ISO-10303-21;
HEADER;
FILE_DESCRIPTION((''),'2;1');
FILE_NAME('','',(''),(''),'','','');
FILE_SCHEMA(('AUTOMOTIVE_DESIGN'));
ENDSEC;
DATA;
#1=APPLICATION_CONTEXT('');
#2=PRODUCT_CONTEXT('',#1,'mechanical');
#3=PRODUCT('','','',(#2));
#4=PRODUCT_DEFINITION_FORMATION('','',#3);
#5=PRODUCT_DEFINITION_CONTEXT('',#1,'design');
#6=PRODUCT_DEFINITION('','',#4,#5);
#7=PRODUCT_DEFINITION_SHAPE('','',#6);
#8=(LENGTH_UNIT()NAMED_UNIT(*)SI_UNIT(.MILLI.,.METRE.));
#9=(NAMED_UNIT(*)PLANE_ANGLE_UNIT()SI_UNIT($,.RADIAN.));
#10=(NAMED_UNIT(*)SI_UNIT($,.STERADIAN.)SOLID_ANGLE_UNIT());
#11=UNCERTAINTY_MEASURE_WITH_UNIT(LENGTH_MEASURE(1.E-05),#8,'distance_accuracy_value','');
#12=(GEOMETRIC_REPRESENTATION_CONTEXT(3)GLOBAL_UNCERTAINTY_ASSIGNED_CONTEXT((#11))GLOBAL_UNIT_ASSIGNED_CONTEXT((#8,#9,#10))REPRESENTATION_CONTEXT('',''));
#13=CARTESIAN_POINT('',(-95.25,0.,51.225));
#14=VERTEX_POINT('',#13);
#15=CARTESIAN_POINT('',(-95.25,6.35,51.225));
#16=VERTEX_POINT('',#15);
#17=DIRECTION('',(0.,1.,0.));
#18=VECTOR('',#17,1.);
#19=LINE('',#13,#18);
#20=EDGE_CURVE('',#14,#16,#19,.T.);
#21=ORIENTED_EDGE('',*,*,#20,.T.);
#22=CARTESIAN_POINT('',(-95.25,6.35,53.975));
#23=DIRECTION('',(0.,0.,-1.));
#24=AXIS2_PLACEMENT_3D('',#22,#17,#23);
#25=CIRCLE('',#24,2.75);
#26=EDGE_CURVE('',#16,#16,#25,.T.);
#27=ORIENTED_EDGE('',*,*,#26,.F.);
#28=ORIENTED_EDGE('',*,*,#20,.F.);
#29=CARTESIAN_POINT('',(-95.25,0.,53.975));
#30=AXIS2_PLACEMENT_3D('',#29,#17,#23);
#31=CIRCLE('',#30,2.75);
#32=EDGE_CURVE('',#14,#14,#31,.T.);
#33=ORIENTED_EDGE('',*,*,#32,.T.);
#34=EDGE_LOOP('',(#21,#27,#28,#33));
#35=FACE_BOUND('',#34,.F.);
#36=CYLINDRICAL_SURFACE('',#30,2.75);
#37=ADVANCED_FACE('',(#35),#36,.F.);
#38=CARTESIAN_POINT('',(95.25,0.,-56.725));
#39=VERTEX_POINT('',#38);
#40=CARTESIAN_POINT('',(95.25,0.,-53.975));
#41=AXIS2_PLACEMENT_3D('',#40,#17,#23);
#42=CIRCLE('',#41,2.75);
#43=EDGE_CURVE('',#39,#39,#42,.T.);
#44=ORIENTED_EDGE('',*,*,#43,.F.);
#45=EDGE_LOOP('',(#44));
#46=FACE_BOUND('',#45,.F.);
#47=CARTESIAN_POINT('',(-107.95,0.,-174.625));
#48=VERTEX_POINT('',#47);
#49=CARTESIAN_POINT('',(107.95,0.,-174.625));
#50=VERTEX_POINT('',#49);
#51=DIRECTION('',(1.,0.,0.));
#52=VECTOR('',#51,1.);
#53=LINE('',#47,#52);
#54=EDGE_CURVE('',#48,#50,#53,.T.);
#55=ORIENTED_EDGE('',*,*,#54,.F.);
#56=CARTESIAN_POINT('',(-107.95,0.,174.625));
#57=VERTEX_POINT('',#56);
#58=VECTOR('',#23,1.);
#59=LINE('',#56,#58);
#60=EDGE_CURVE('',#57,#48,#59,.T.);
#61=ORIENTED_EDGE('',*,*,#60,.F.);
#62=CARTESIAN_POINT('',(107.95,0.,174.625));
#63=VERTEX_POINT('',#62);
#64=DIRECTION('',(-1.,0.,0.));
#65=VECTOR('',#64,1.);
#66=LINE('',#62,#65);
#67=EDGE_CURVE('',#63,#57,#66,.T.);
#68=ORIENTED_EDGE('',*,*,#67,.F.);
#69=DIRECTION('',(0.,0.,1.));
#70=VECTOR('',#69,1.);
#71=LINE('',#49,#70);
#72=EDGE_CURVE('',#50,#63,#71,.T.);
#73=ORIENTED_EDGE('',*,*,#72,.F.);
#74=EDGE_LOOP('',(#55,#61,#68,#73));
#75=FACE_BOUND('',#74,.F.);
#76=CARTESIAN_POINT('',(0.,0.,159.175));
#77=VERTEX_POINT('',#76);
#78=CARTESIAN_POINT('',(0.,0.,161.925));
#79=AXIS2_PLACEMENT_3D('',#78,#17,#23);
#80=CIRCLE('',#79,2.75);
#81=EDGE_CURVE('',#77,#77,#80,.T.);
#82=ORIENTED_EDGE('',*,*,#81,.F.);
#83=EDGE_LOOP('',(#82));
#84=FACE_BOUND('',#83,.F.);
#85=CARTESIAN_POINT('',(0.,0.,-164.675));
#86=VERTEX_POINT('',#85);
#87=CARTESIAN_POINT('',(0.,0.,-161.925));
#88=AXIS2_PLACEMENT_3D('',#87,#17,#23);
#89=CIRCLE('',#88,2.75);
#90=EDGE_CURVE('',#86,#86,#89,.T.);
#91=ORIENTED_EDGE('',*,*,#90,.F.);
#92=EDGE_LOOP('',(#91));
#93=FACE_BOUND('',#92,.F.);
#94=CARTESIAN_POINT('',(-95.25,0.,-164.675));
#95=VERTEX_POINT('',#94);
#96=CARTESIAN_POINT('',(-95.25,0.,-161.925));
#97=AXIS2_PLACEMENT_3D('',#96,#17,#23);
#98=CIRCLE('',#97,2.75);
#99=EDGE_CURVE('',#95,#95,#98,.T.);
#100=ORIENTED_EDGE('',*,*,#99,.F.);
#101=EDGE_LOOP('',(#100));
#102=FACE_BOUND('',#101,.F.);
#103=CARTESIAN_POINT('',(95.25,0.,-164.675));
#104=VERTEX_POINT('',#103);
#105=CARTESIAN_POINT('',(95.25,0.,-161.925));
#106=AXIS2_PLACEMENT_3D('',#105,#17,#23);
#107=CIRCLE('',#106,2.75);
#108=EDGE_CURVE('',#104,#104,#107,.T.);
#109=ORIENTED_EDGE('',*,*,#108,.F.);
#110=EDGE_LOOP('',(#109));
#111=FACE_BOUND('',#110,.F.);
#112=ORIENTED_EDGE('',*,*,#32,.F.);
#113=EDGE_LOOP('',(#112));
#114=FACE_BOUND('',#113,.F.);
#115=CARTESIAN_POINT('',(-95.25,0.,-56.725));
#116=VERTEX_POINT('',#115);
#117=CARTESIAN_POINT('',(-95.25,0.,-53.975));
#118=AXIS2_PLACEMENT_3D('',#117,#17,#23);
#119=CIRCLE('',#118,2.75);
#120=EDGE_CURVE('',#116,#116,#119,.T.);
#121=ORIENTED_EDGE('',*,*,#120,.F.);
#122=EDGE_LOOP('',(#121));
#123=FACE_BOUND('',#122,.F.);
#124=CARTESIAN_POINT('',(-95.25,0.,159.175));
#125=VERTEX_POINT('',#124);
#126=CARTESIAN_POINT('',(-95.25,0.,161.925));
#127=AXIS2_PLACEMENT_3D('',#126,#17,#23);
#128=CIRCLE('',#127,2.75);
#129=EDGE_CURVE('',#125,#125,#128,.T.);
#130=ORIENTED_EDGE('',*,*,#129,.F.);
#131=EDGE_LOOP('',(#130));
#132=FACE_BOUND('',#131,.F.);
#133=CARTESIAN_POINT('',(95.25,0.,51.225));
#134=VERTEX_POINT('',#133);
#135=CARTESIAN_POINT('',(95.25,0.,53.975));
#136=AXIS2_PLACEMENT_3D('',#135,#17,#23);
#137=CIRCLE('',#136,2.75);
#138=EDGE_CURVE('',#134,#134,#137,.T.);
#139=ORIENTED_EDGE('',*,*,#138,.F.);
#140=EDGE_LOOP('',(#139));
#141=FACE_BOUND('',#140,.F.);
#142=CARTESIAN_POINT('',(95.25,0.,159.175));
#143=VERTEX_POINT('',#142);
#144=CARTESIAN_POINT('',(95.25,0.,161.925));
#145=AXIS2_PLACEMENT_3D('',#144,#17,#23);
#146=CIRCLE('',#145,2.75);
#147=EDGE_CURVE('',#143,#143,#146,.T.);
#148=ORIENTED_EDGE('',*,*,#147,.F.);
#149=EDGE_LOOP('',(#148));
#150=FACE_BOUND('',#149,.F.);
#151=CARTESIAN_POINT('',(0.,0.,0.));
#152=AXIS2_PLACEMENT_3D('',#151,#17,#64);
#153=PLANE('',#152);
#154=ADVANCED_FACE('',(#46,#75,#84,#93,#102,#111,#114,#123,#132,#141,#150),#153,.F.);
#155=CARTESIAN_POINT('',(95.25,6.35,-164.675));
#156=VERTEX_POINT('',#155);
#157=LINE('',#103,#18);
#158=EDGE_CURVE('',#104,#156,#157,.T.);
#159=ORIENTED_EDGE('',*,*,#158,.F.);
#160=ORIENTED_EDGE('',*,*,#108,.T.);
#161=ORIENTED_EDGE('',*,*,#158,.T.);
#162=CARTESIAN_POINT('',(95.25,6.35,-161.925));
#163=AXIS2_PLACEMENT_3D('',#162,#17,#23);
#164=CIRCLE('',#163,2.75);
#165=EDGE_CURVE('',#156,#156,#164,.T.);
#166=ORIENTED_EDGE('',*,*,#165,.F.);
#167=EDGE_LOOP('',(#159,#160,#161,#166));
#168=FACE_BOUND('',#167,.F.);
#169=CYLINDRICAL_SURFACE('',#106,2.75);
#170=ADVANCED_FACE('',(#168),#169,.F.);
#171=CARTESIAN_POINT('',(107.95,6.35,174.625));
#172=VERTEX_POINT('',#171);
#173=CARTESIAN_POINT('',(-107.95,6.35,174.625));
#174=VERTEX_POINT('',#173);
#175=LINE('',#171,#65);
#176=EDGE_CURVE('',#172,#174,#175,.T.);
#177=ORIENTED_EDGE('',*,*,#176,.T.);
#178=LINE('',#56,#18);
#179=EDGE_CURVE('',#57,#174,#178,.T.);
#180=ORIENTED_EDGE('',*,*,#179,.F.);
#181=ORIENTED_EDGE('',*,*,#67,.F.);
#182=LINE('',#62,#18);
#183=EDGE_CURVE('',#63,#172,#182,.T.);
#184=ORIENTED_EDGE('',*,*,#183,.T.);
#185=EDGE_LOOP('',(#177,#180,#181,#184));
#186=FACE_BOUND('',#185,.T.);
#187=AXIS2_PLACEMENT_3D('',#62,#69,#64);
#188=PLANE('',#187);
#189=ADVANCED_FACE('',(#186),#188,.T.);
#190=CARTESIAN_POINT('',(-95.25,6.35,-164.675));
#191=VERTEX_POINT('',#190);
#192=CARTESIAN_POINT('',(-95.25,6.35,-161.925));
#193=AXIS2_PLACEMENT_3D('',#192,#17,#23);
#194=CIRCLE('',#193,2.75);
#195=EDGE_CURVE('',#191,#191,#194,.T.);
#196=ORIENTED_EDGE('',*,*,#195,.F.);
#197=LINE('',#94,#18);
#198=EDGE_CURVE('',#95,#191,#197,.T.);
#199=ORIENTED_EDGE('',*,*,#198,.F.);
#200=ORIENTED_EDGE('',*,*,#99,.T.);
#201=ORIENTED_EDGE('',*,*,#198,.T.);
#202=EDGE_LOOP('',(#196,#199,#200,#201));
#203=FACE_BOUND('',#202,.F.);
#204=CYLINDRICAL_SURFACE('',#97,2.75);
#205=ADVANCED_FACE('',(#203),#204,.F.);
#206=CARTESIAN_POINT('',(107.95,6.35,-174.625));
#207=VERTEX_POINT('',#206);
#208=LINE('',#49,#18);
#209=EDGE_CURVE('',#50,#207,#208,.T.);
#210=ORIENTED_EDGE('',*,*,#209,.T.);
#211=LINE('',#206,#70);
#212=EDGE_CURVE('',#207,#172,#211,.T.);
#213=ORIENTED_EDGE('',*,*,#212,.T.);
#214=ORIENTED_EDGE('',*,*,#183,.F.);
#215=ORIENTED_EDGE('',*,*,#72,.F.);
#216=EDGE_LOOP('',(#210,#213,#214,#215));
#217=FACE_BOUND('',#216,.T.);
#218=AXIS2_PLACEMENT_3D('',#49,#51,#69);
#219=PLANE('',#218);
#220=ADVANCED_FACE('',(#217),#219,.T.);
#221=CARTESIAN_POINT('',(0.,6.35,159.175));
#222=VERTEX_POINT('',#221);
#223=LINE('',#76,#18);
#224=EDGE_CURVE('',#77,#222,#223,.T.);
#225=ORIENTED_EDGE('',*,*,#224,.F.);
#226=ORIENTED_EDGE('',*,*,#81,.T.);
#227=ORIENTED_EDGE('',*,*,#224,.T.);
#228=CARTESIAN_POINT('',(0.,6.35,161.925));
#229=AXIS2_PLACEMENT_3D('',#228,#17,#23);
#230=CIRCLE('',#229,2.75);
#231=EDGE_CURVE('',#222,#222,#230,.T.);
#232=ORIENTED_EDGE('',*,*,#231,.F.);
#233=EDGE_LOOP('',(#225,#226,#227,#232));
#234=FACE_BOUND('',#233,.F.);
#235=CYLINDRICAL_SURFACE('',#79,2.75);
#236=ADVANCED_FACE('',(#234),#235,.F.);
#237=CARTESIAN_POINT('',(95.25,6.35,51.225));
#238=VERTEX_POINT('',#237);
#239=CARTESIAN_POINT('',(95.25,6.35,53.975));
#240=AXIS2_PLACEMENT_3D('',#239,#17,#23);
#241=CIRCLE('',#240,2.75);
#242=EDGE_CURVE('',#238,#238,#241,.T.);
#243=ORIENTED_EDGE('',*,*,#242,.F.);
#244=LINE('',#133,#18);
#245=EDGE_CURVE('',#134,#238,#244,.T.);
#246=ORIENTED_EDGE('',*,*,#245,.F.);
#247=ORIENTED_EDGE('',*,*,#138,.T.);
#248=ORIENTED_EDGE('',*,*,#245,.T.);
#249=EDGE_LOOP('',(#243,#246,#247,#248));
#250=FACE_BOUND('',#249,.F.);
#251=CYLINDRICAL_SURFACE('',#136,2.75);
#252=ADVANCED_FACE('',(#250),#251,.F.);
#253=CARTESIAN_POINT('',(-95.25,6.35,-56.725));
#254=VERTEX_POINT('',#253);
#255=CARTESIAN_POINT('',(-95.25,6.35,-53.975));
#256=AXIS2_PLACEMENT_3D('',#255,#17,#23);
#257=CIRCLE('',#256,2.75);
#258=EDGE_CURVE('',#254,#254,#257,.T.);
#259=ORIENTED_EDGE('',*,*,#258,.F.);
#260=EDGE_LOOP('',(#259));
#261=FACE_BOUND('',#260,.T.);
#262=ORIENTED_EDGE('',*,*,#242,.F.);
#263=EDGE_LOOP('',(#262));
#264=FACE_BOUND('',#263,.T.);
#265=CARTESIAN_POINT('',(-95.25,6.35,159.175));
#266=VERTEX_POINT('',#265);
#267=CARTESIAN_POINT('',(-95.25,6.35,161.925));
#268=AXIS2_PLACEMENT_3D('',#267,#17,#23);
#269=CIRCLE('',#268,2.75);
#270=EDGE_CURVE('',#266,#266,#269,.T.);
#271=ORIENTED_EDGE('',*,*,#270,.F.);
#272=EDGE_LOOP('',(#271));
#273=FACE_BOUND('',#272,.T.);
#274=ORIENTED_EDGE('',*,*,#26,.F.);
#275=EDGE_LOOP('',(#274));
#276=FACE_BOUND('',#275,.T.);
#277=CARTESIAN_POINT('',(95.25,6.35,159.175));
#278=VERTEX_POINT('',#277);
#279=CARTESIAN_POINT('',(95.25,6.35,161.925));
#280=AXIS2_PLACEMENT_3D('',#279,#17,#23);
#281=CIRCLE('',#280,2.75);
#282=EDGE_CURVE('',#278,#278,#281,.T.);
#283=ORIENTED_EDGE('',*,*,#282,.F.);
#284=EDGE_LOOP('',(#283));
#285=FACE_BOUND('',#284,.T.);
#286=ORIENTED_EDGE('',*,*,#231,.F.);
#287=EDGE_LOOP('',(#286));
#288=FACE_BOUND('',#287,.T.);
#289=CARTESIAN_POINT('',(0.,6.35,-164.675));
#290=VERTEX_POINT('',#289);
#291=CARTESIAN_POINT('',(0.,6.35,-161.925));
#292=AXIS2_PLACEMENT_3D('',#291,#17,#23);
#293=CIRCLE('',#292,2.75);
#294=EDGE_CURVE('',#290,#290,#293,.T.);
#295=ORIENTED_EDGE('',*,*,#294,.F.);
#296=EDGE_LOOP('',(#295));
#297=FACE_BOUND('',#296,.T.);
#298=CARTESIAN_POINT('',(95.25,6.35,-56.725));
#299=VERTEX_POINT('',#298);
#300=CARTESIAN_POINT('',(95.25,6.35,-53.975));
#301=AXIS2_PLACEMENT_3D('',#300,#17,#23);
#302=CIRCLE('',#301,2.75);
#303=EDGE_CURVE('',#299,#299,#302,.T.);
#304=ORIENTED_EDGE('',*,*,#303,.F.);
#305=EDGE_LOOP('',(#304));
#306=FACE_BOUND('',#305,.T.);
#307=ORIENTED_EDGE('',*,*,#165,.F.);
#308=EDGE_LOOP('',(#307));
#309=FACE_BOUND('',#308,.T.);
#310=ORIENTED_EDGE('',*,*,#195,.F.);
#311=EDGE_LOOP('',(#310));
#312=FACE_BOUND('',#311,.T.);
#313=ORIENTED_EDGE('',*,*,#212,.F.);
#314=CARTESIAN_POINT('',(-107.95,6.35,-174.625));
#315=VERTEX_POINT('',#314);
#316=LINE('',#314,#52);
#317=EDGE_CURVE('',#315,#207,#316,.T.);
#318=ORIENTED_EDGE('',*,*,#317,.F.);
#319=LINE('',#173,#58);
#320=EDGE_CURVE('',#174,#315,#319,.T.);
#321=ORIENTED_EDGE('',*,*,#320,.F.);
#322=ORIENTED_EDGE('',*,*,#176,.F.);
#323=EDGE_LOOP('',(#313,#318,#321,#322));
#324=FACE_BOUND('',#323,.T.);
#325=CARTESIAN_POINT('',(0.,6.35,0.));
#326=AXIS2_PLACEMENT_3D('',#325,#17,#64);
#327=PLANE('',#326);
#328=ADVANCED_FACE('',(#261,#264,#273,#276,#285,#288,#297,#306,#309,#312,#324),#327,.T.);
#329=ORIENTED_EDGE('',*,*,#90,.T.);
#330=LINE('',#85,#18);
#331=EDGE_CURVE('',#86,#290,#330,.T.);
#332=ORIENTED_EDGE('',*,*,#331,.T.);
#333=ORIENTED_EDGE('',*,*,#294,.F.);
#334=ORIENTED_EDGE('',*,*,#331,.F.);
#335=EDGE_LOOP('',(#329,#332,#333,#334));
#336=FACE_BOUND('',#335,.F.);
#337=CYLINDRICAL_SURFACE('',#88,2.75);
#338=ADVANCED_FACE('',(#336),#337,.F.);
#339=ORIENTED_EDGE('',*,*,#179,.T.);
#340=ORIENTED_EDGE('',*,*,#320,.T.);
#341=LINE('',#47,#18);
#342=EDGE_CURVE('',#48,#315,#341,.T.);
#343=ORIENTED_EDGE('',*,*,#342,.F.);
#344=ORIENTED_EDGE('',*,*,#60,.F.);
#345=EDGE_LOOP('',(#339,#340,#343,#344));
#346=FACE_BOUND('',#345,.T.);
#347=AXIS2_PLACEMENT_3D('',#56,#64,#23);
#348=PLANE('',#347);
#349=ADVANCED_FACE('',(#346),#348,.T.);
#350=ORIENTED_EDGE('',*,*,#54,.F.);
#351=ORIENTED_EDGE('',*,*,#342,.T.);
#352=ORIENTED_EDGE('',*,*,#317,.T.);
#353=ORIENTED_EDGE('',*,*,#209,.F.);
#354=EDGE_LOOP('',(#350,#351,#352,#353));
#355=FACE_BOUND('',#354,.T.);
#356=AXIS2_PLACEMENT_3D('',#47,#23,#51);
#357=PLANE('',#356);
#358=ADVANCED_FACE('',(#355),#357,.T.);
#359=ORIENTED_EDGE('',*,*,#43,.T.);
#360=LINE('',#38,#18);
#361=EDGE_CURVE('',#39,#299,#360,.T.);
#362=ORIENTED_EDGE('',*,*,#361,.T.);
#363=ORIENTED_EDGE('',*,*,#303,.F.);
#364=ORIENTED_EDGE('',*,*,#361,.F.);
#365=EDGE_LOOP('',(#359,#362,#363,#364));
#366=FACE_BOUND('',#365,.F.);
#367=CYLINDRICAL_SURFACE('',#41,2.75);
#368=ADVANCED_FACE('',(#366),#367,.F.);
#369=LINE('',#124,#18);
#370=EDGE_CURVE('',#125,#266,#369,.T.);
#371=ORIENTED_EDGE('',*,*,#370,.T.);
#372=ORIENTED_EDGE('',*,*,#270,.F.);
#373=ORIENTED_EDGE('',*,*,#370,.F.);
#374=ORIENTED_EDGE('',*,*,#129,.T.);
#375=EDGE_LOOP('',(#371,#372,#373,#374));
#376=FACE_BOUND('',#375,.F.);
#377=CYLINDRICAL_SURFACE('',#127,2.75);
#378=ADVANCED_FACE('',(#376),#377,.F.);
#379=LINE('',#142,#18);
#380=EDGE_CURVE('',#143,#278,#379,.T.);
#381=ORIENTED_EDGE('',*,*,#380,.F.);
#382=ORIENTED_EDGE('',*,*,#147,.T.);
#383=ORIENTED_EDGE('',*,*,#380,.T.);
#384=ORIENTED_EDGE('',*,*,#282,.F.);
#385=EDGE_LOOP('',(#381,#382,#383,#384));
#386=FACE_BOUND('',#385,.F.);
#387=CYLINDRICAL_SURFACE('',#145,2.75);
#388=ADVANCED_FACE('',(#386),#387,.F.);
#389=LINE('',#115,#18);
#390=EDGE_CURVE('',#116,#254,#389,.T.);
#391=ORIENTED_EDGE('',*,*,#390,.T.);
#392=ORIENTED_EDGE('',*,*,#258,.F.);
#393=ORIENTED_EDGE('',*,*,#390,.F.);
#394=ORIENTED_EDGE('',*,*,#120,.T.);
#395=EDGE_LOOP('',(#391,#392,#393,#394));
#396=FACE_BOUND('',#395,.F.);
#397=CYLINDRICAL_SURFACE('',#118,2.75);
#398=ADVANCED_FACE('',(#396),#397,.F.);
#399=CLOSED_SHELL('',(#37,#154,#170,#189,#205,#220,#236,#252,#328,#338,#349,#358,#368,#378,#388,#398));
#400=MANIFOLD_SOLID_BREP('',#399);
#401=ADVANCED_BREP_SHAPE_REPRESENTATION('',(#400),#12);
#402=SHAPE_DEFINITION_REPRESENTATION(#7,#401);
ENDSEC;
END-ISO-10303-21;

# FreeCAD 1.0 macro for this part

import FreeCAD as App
import Part
import Sketcher
Q = App.Units.Quantity


def add_polygon(sketch, points):
    """Adds a closed chain of lines whose ends are joined by coincident constraints."""
    first, n = sketch.GeometryCount, len(points)
    for a, b in zip(points, points[1:] + points[:1]):
        sketch.addGeometry(Part.LineSegment(App.Vector(*a, 0), App.Vector(*b, 0)), False)
    for i in range(n):
        sketch.addConstraint(Sketcher.Constraint("Coincident", first + i, 2, first + (i + 1) % n, 1))

doc = App.newDocument("Part")
body = doc.addObject("PartDesign::Body", "Body")

# Sketch on XZ plane
sketch1 = body.newObject("Sketcher::SketchObject", "Sketch")
sketch1.AttachmentSupport = (doc.getObject("XZ_Plane"), [""])
sketch1.MapMode = "FlatFace"
add_polygon(sketch1, [(108, -175), (-108, -175), (-108, 175), (108, 175)])  # lines 0-3
sketch1.addConstraint(Sketcher.Constraint("Horizontal", 0))
sketch1.addConstraint(Sketcher.Constraint("Vertical", 1))
sketch1.addConstraint(Sketcher.Constraint("Horizontal", 2))
sketch1.addConstraint(Sketcher.Constraint("Vertical", 3))
sketch1.addConstraint(Sketcher.Constraint("Symmetric", 0, 2, 2, 2, -1, 1))
sketch1.addConstraint(Sketcher.Constraint("DistanceX", 0, 2, 0, 1, Q("8.5 in")))
sketch1.addConstraint(Sketcher.Constraint("DistanceY", 1, 1, 1, 2, Q("13.75 in")))
pad1 = body.newObject("PartDesign::Pad", "Pad")
pad1.Profile = sketch1
pad1.Length = Q("0.25 in")
pad1.Reversed = True

# Sketch on XZ plane
sketch2 = body.newObject("Sketcher::SketchObject", "Sketch001")
sketch2.AttachmentSupport = (doc.getObject("XZ_Plane"), [""])
sketch2.MapMode = "FlatFace"
sketch2.addGeometry(Part.Circle(App.Vector(95.2, -161.9, 0), App.Vector(0, 0, 1), 2.8), False)
sketch2.addGeometry(Part.Circle(App.Vector(0, -161.9, 0), App.Vector(0, 0, 1), 2.8), False)
sketch2.addGeometry(Part.Circle(App.Vector(-95.2, -161.9, 0), App.Vector(0, 0, 1), 2.8), False)
sketch2.addGeometry(Part.Circle(App.Vector(-95.2, -54, 0), App.Vector(0, 0, 1), 2.8), False)
sketch2.addGeometry(Part.Circle(App.Vector(-95.2, 54, 0), App.Vector(0, 0, 1), 2.8), False)
sketch2.addGeometry(Part.Circle(App.Vector(-95.2, 161.9, 0), App.Vector(0, 0, 1), 2.8), False)
sketch2.addGeometry(Part.Circle(App.Vector(0, 161.9, 0), App.Vector(0, 0, 1), 2.8), False)
sketch2.addGeometry(Part.Circle(App.Vector(95.2, 161.9, 0), App.Vector(0, 0, 1), 2.8), False)
sketch2.addGeometry(Part.Circle(App.Vector(95.2, 54, 0), App.Vector(0, 0, 1), 2.8), False)
sketch2.addGeometry(Part.Circle(App.Vector(95.2, -54, 0), App.Vector(0, 0, 1), 2.8), False)
sketch2.addConstraint(Sketcher.Constraint("Equal", 0, 1))
sketch2.addConstraint(Sketcher.Constraint("Equal", 1, 2))
sketch2.addConstraint(Sketcher.Constraint("Equal", 2, 3))
sketch2.addConstraint(Sketcher.Constraint("Equal", 3, 4))
sketch2.addConstraint(Sketcher.Constraint("Equal", 4, 5))
sketch2.addConstraint(Sketcher.Constraint("Equal", 5, 6))
sketch2.addConstraint(Sketcher.Constraint("Equal", 6, 7))
sketch2.addConstraint(Sketcher.Constraint("Equal", 7, 8))
sketch2.addConstraint(Sketcher.Constraint("Equal", 8, 9))
sketch2.addConstraint(Sketcher.Constraint("Symmetric", 0, 3, 5, 3, -1, 1))
sketch2.addConstraint(Sketcher.Constraint("Symmetric", 1, 3, 6, 3, -1, 1))
sketch2.addConstraint(Sketcher.Constraint("Symmetric", 2, 3, 7, 3, -1, 1))
sketch2.addConstraint(Sketcher.Constraint("Symmetric", 3, 3, 8, 3, -1, 1))
sketch2.addConstraint(Sketcher.Constraint("Symmetric", 4, 3, 9, 3, -1, 1))
sketch2.addConstraint(Sketcher.Constraint("Symmetric", 0, 3, 2, 3, -2))
sketch2.addConstraint(Sketcher.Constraint("Symmetric", 4, 3, 8, 3, -2))
sketch2.addConstraint(Sketcher.Constraint("PointOnObject", 1, 3, -2))
sketch2.addConstraint(Sketcher.Constraint("Horizontal", 0, 3, 1, 3))
sketch2.addConstraint(Sketcher.Constraint("Vertical", 2, 3, 3, 3))
sketch2.addConstraint(Sketcher.Constraint("DistanceX", 2, 3, 0, 3, Q("7.5 in")))
sketch2.addConstraint(Sketcher.Constraint("DistanceY", 2, 3, 4, 3, Q("8.5 in")))
sketch2.addConstraint(Sketcher.Constraint("Diameter", 0, Q("5.5 mm")))
sketch2.addConstraint(Sketcher.Constraint("DistanceY", 2, 3, 3, 3, Q("4.25 in")))
doc.recompute()
hole = body.newObject("PartDesign::Hole", "Hole")
hole.Profile = sketch2
hole.ThreadType = "None"
hole.Diameter = 5.5
hole.DepthType = "ThroughAll"

doc.recompute()
